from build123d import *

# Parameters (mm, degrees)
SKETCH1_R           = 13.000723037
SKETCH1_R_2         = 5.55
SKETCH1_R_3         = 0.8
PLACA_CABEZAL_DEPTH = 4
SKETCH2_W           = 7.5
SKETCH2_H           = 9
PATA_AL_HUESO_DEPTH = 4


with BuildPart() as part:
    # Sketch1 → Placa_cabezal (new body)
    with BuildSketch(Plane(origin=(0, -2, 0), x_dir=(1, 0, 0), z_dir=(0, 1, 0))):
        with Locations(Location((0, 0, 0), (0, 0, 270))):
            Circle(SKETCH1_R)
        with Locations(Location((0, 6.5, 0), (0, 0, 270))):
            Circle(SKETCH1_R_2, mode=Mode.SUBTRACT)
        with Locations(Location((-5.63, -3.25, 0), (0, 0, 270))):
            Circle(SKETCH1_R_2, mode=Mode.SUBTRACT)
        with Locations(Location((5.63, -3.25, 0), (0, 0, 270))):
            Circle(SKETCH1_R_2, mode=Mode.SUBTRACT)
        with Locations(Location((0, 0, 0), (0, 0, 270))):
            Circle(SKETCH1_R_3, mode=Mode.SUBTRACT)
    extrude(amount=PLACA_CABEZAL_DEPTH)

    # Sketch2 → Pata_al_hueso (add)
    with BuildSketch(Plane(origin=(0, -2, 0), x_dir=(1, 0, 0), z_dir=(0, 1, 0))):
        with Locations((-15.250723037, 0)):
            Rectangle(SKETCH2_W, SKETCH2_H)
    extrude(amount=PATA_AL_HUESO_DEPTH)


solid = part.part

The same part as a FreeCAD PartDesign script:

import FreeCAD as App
import Part
import Sketcher

V = App.Vector


def add_polygon(sketch, points):
    """Adds a closed chain of lines whose ends are joined by coincident constraints."""
    first, n = sketch.GeometryCount, len(points)
    for a, b in zip(points, points[1:] + points[:1]):
        sketch.addGeometry(Part.LineSegment(App.Vector(*a, 0), App.Vector(*b, 0)), False)
    for i in range(n):
        sketch.addConstraint(Sketcher.Constraint("Coincident", first + i, 2, first + (i + 1) % n, 1))

doc = App.newDocument("Part")
body = doc.addObject("PartDesign::Body", "Body")

sketch1 = doc.addObject("Sketcher::SketchObject", "Sketch")
body.addObject(sketch1)
sketch1.AttachmentSupport = (doc.XZ_Plane, [""])
sketch1.MapMode = "FlatFace"
sketch1.AttachmentOffset = App.Placement(V(0, 0, 2), App.Rotation())
sketch1.addGeometry([
    Part.Circle(V(0, 0, 0), V(0, 0, 1), 13.000723),
    Part.Circle(V(0, -6.5, 0), V(0, 0, 1), 5.55),
    Part.Circle(V(-5.63, 3.25, 0), V(0, 0, 1), 5.55),
    Part.Circle(V(0, 0, 0), V(0, 0, 1), 0.8),
    Part.Circle(V(5.63, 3.25, 0), V(0, 0, 1), 5.55),
], False)
sketch1.addConstraint([
    Sketcher.Constraint("Coincident", 0, 3, -1, 1),
    Sketcher.Constraint("Coincident", 3, 3, -1, 1),
    Sketcher.Constraint("Equal", 1, 2),
    Sketcher.Constraint("Equal", 2, 4),
    Sketcher.Constraint("Symmetric", 2, 3, 4, 3, -2),
    Sketcher.Constraint("PointOnObject", 1, 3, -2),
    Sketcher.Constraint("Diameter", 1, 11.1),
    Sketcher.Constraint("Diameter", 3, 1.6),
    Sketcher.Constraint("DistanceY", 1, 3, -1, 1, 6.5),
    Sketcher.Constraint("DistanceX", 2, 3, -1, 1, 5.63),
    Sketcher.Constraint("DistanceY", -1, 1, 2, 3, 3.25),
    Sketcher.Constraint("Diameter", 0, 26.001446),
])
pad1 = doc.addObject("PartDesign::Pad", "Pad")
body.addObject(pad1)
pad1.Profile = sketch1
pad1.Length = 4
pad1.Reversed = True

sketch2 = doc.addObject("Sketcher::SketchObject", "Sketch001")
body.addObject(sketch2)
sketch2.AttachmentSupport = (doc.XZ_Plane, [""])
sketch2.MapMode = "FlatFace"
sketch2.AttachmentOffset = App.Placement(V(0, 0, 2), App.Rotation())
add_polygon(sketch2, [(-19.000723, -4.5), (-19.000723, 4.5), (-11.500723, 4.5), (-11.500723, -4.5)])
sketch2.addConstraint([
    Sketcher.Constraint("Vertical", 0),
    Sketcher.Constraint("Horizontal", 1),
    Sketcher.Constraint("Vertical", 2),
    Sketcher.Constraint("Horizontal", 3),
    Sketcher.Constraint("DistanceY", 0, 1, 0, 2, 9.0),
    Sketcher.Constraint("DistanceX", 1, 1, 1, 2, 7.5),
    Sketcher.Constraint("DistanceY", -1, 1, 0, 2, 4.5),
    Sketcher.Constraint("DistanceX", 0, 2, -1, 1, 19.000723),
])
pad2 = doc.addObject("PartDesign::Pad", "Pad001")
body.addObject(pad2)
pad2.Profile = sketch2
pad2.Length = 4
pad2.Reversed = True

doc.recompute()
